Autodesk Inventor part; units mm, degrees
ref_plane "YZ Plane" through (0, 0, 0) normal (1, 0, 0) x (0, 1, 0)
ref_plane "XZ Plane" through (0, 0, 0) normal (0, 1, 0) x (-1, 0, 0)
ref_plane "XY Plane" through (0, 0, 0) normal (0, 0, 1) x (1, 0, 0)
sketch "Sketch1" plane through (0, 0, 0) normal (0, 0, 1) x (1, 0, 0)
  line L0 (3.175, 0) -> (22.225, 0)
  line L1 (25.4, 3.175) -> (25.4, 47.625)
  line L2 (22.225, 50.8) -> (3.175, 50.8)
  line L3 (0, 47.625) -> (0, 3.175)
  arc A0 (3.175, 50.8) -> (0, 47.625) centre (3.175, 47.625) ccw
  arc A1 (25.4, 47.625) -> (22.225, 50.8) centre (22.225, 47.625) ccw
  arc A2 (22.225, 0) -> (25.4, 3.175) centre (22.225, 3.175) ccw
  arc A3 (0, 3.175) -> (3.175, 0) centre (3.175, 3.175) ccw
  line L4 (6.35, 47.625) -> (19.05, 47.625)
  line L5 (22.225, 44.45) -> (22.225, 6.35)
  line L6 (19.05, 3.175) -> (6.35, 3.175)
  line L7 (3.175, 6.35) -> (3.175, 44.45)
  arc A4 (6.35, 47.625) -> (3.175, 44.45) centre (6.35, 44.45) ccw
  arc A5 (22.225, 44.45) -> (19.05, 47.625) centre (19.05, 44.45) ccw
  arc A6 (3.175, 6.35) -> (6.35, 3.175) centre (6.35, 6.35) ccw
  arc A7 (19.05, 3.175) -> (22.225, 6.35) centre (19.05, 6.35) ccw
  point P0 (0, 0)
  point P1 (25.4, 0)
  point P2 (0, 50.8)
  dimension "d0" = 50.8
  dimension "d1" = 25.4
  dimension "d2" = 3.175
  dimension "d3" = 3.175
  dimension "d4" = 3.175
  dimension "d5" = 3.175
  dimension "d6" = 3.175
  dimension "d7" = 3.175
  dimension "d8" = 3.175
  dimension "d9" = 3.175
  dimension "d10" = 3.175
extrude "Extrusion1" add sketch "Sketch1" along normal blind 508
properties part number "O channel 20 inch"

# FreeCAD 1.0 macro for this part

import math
import FreeCAD as App
import Part
import Sketcher
from FreeCAD import Vector
Q = App.Units.Quantity

doc = App.newDocument("Part")
params = doc.addObject("Spreadsheet::Sheet", "Params")
for row, (alias, value) in enumerate([
    ("sketch1_radius", "0.125 in"),
    ("pad1_length", "20 in"),
], start=1):
    params.set(f"A{row}", alias)
    params.set(f"B{row}", "=" + value)
    params.setAlias(f"B{row}", alias)

body = doc.addObject("PartDesign::Body", "Body")

# Sketch on XY plane
sketch1 = body.newObject("Sketcher::SketchObject", "Sketch")
sketch1.AttachmentSupport = (doc.getObject("XY_Plane"), [""])
sketch1.MapMode = "FlatFace"
sketch1.addGeometry(Part.ArcOfCircle(Part.Circle(Vector(3.2, 3.2, 0), Vector(0, 0, 1), 3.2), math.radians(180), math.radians(270)), False)
sketch1.addGeometry(Part.LineSegment(Vector(3.2, 0, 0), Vector(22.2, 0, 0)), False)
sketch1.addGeometry(Part.ArcOfCircle(Part.Circle(Vector(22.2, 3.2, 0), Vector(0, 0, 1), 3.2), math.radians(-90), math.radians(0)), False)
sketch1.addGeometry(Part.LineSegment(Vector(25.4, 3.2, 0), Vector(25.4, 47.6, 0)), False)
sketch1.addGeometry(Part.ArcOfCircle(Part.Circle(Vector(22.2, 47.6, 0), Vector(0, 0, 1), 3.2), math.radians(0), math.radians(90)), False)
sketch1.addGeometry(Part.LineSegment(Vector(22.2, 50.8, 0), Vector(3.2, 50.8, 0)), False)
sketch1.addGeometry(Part.ArcOfCircle(Part.Circle(Vector(3.2, 47.6, 0), Vector(0, 0, 1), 3.2), math.radians(90), math.radians(180)), False)
sketch1.addGeometry(Part.LineSegment(Vector(0, 47.6, 0), Vector(0, 3.2, 0)), False)
sketch1.addGeometry(Part.ArcOfCircle(Part.Circle(Vector(6.3, 44.5, 0), Vector(0, 0, 1), 3.2), math.radians(90), math.radians(180)), False)
sketch1.addGeometry(Part.LineSegment(Vector(6.3, 47.6, 0), Vector(19.1, 47.6, 0)), False)
sketch1.addGeometry(Part.ArcOfCircle(Part.Circle(Vector(19.1, 44.5, 0), Vector(0, 0, 1), 3.2), math.radians(0), math.radians(90)), False)
sketch1.addGeometry(Part.LineSegment(Vector(22.2, 44.5, 0), Vector(22.2, 6.3, 0)), False)
sketch1.addGeometry(Part.ArcOfCircle(Part.Circle(Vector(19.1, 6.3, 0), Vector(0, 0, 1), 3.2), math.radians(-90), math.radians(0)), False)
sketch1.addGeometry(Part.LineSegment(Vector(19.1, 3.2, 0), Vector(6.3, 3.2, 0)), False)
sketch1.addGeometry(Part.ArcOfCircle(Part.Circle(Vector(6.3, 6.3, 0), Vector(0, 0, 1), 3.2), math.radians(180), math.radians(270)), False)
sketch1.addGeometry(Part.LineSegment(Vector(3.2, 6.3, 0), Vector(3.2, 44.5, 0)), False)
sketch1.addConstraint(Sketcher.Constraint("Tangent", 0, 2, 1, 1))
sketch1.addConstraint(Sketcher.Constraint("Tangent", 1, 2, 2, 1))
sketch1.addConstraint(Sketcher.Constraint("Tangent", 2, 2, 3, 1))
sketch1.addConstraint(Sketcher.Constraint("Tangent", 3, 2, 4, 1))
sketch1.addConstraint(Sketcher.Constraint("Tangent", 4, 2, 5, 1))
sketch1.addConstraint(Sketcher.Constraint("Tangent", 5, 2, 6, 1))
sketch1.addConstraint(Sketcher.Constraint("Tangent", 6, 2, 7, 1))
sketch1.addConstraint(Sketcher.Constraint("Tangent", 7, 2, 0, 1))
sketch1.addConstraint(Sketcher.Constraint("Tangent", 8, 1, 9, 1))
sketch1.addConstraint(Sketcher.Constraint("Tangent", 9, 2, 10, 2))
sketch1.addConstraint(Sketcher.Constraint("Tangent", 10, 1, 11, 1))
sketch1.addConstraint(Sketcher.Constraint("Tangent", 11, 2, 12, 2))
sketch1.addConstraint(Sketcher.Constraint("Tangent", 12, 1, 13, 1))
sketch1.addConstraint(Sketcher.Constraint("Tangent", 13, 2, 14, 2))
sketch1.addConstraint(Sketcher.Constraint("Tangent", 14, 1, 15, 1))
sketch1.addConstraint(Sketcher.Constraint("Tangent", 15, 2, 8, 2))
sketch1.addConstraint(Sketcher.Constraint("Horizontal", 1))
sketch1.addConstraint(Sketcher.Constraint("Vertical", 3))
sketch1.addConstraint(Sketcher.Constraint("Horizontal", 5))
sketch1.addConstraint(Sketcher.Constraint("Vertical", 7))
sketch1.addConstraint(Sketcher.Constraint("Horizontal", 9))
sketch1.addConstraint(Sketcher.Constraint("Vertical", 11))
sketch1.addConstraint(Sketcher.Constraint("Horizontal", 13))
sketch1.addConstraint(Sketcher.Constraint("Vertical", 15))
sketch1.addConstraint(Sketcher.Constraint("Equal", 0, 2))
sketch1.addConstraint(Sketcher.Constraint("Equal", 2, 4))
sketch1.addConstraint(Sketcher.Constraint("Equal", 4, 6))
sketch1.addConstraint(Sketcher.Constraint("Equal", 6, 8))
sketch1.addConstraint(Sketcher.Constraint("Equal", 8, 10))
sketch1.addConstraint(Sketcher.Constraint("Equal", 10, 12))
sketch1.addConstraint(Sketcher.Constraint("Equal", 12, 14))
sketch1.addConstraint(Sketcher.Constraint("PointOnObject", 0, 2, -1))
sketch1.addConstraint(Sketcher.Constraint("PointOnObject", 6, 2, -2))
sketch1.addConstraint(Sketcher.Constraint("Horizontal", 6, 2, 8, 1))
sketch1.addConstraint(Sketcher.Constraint("Horizontal", 7, 2, 12, 1))
sketch1.addConstraint(Sketcher.Constraint("Vertical", 4, 2, 10, 1))
sketch1.addConstraint(Sketcher.Constraint("Vertical", 5, 2, 14, 1))
sketch1.addConstraint(Sketcher.Constraint("DistanceX", -1, 1, 2, 2, Q("1 in")))
sketch1.addConstraint(Sketcher.Constraint("DistanceY", -1, 1, 4, 2, Q("2 in")))
sketch1.addConstraint(Sketcher.Constraint("Radius", 0, Q("0.125 in")))
sketch1.setExpression("Constraints[39]", "Params.sketch1_radius")
pad1 = body.newObject("PartDesign::Pad", "Pad")
pad1.Profile = sketch1
pad1.setExpression("Length", "Params.pad1_length")

doc.recompute()
